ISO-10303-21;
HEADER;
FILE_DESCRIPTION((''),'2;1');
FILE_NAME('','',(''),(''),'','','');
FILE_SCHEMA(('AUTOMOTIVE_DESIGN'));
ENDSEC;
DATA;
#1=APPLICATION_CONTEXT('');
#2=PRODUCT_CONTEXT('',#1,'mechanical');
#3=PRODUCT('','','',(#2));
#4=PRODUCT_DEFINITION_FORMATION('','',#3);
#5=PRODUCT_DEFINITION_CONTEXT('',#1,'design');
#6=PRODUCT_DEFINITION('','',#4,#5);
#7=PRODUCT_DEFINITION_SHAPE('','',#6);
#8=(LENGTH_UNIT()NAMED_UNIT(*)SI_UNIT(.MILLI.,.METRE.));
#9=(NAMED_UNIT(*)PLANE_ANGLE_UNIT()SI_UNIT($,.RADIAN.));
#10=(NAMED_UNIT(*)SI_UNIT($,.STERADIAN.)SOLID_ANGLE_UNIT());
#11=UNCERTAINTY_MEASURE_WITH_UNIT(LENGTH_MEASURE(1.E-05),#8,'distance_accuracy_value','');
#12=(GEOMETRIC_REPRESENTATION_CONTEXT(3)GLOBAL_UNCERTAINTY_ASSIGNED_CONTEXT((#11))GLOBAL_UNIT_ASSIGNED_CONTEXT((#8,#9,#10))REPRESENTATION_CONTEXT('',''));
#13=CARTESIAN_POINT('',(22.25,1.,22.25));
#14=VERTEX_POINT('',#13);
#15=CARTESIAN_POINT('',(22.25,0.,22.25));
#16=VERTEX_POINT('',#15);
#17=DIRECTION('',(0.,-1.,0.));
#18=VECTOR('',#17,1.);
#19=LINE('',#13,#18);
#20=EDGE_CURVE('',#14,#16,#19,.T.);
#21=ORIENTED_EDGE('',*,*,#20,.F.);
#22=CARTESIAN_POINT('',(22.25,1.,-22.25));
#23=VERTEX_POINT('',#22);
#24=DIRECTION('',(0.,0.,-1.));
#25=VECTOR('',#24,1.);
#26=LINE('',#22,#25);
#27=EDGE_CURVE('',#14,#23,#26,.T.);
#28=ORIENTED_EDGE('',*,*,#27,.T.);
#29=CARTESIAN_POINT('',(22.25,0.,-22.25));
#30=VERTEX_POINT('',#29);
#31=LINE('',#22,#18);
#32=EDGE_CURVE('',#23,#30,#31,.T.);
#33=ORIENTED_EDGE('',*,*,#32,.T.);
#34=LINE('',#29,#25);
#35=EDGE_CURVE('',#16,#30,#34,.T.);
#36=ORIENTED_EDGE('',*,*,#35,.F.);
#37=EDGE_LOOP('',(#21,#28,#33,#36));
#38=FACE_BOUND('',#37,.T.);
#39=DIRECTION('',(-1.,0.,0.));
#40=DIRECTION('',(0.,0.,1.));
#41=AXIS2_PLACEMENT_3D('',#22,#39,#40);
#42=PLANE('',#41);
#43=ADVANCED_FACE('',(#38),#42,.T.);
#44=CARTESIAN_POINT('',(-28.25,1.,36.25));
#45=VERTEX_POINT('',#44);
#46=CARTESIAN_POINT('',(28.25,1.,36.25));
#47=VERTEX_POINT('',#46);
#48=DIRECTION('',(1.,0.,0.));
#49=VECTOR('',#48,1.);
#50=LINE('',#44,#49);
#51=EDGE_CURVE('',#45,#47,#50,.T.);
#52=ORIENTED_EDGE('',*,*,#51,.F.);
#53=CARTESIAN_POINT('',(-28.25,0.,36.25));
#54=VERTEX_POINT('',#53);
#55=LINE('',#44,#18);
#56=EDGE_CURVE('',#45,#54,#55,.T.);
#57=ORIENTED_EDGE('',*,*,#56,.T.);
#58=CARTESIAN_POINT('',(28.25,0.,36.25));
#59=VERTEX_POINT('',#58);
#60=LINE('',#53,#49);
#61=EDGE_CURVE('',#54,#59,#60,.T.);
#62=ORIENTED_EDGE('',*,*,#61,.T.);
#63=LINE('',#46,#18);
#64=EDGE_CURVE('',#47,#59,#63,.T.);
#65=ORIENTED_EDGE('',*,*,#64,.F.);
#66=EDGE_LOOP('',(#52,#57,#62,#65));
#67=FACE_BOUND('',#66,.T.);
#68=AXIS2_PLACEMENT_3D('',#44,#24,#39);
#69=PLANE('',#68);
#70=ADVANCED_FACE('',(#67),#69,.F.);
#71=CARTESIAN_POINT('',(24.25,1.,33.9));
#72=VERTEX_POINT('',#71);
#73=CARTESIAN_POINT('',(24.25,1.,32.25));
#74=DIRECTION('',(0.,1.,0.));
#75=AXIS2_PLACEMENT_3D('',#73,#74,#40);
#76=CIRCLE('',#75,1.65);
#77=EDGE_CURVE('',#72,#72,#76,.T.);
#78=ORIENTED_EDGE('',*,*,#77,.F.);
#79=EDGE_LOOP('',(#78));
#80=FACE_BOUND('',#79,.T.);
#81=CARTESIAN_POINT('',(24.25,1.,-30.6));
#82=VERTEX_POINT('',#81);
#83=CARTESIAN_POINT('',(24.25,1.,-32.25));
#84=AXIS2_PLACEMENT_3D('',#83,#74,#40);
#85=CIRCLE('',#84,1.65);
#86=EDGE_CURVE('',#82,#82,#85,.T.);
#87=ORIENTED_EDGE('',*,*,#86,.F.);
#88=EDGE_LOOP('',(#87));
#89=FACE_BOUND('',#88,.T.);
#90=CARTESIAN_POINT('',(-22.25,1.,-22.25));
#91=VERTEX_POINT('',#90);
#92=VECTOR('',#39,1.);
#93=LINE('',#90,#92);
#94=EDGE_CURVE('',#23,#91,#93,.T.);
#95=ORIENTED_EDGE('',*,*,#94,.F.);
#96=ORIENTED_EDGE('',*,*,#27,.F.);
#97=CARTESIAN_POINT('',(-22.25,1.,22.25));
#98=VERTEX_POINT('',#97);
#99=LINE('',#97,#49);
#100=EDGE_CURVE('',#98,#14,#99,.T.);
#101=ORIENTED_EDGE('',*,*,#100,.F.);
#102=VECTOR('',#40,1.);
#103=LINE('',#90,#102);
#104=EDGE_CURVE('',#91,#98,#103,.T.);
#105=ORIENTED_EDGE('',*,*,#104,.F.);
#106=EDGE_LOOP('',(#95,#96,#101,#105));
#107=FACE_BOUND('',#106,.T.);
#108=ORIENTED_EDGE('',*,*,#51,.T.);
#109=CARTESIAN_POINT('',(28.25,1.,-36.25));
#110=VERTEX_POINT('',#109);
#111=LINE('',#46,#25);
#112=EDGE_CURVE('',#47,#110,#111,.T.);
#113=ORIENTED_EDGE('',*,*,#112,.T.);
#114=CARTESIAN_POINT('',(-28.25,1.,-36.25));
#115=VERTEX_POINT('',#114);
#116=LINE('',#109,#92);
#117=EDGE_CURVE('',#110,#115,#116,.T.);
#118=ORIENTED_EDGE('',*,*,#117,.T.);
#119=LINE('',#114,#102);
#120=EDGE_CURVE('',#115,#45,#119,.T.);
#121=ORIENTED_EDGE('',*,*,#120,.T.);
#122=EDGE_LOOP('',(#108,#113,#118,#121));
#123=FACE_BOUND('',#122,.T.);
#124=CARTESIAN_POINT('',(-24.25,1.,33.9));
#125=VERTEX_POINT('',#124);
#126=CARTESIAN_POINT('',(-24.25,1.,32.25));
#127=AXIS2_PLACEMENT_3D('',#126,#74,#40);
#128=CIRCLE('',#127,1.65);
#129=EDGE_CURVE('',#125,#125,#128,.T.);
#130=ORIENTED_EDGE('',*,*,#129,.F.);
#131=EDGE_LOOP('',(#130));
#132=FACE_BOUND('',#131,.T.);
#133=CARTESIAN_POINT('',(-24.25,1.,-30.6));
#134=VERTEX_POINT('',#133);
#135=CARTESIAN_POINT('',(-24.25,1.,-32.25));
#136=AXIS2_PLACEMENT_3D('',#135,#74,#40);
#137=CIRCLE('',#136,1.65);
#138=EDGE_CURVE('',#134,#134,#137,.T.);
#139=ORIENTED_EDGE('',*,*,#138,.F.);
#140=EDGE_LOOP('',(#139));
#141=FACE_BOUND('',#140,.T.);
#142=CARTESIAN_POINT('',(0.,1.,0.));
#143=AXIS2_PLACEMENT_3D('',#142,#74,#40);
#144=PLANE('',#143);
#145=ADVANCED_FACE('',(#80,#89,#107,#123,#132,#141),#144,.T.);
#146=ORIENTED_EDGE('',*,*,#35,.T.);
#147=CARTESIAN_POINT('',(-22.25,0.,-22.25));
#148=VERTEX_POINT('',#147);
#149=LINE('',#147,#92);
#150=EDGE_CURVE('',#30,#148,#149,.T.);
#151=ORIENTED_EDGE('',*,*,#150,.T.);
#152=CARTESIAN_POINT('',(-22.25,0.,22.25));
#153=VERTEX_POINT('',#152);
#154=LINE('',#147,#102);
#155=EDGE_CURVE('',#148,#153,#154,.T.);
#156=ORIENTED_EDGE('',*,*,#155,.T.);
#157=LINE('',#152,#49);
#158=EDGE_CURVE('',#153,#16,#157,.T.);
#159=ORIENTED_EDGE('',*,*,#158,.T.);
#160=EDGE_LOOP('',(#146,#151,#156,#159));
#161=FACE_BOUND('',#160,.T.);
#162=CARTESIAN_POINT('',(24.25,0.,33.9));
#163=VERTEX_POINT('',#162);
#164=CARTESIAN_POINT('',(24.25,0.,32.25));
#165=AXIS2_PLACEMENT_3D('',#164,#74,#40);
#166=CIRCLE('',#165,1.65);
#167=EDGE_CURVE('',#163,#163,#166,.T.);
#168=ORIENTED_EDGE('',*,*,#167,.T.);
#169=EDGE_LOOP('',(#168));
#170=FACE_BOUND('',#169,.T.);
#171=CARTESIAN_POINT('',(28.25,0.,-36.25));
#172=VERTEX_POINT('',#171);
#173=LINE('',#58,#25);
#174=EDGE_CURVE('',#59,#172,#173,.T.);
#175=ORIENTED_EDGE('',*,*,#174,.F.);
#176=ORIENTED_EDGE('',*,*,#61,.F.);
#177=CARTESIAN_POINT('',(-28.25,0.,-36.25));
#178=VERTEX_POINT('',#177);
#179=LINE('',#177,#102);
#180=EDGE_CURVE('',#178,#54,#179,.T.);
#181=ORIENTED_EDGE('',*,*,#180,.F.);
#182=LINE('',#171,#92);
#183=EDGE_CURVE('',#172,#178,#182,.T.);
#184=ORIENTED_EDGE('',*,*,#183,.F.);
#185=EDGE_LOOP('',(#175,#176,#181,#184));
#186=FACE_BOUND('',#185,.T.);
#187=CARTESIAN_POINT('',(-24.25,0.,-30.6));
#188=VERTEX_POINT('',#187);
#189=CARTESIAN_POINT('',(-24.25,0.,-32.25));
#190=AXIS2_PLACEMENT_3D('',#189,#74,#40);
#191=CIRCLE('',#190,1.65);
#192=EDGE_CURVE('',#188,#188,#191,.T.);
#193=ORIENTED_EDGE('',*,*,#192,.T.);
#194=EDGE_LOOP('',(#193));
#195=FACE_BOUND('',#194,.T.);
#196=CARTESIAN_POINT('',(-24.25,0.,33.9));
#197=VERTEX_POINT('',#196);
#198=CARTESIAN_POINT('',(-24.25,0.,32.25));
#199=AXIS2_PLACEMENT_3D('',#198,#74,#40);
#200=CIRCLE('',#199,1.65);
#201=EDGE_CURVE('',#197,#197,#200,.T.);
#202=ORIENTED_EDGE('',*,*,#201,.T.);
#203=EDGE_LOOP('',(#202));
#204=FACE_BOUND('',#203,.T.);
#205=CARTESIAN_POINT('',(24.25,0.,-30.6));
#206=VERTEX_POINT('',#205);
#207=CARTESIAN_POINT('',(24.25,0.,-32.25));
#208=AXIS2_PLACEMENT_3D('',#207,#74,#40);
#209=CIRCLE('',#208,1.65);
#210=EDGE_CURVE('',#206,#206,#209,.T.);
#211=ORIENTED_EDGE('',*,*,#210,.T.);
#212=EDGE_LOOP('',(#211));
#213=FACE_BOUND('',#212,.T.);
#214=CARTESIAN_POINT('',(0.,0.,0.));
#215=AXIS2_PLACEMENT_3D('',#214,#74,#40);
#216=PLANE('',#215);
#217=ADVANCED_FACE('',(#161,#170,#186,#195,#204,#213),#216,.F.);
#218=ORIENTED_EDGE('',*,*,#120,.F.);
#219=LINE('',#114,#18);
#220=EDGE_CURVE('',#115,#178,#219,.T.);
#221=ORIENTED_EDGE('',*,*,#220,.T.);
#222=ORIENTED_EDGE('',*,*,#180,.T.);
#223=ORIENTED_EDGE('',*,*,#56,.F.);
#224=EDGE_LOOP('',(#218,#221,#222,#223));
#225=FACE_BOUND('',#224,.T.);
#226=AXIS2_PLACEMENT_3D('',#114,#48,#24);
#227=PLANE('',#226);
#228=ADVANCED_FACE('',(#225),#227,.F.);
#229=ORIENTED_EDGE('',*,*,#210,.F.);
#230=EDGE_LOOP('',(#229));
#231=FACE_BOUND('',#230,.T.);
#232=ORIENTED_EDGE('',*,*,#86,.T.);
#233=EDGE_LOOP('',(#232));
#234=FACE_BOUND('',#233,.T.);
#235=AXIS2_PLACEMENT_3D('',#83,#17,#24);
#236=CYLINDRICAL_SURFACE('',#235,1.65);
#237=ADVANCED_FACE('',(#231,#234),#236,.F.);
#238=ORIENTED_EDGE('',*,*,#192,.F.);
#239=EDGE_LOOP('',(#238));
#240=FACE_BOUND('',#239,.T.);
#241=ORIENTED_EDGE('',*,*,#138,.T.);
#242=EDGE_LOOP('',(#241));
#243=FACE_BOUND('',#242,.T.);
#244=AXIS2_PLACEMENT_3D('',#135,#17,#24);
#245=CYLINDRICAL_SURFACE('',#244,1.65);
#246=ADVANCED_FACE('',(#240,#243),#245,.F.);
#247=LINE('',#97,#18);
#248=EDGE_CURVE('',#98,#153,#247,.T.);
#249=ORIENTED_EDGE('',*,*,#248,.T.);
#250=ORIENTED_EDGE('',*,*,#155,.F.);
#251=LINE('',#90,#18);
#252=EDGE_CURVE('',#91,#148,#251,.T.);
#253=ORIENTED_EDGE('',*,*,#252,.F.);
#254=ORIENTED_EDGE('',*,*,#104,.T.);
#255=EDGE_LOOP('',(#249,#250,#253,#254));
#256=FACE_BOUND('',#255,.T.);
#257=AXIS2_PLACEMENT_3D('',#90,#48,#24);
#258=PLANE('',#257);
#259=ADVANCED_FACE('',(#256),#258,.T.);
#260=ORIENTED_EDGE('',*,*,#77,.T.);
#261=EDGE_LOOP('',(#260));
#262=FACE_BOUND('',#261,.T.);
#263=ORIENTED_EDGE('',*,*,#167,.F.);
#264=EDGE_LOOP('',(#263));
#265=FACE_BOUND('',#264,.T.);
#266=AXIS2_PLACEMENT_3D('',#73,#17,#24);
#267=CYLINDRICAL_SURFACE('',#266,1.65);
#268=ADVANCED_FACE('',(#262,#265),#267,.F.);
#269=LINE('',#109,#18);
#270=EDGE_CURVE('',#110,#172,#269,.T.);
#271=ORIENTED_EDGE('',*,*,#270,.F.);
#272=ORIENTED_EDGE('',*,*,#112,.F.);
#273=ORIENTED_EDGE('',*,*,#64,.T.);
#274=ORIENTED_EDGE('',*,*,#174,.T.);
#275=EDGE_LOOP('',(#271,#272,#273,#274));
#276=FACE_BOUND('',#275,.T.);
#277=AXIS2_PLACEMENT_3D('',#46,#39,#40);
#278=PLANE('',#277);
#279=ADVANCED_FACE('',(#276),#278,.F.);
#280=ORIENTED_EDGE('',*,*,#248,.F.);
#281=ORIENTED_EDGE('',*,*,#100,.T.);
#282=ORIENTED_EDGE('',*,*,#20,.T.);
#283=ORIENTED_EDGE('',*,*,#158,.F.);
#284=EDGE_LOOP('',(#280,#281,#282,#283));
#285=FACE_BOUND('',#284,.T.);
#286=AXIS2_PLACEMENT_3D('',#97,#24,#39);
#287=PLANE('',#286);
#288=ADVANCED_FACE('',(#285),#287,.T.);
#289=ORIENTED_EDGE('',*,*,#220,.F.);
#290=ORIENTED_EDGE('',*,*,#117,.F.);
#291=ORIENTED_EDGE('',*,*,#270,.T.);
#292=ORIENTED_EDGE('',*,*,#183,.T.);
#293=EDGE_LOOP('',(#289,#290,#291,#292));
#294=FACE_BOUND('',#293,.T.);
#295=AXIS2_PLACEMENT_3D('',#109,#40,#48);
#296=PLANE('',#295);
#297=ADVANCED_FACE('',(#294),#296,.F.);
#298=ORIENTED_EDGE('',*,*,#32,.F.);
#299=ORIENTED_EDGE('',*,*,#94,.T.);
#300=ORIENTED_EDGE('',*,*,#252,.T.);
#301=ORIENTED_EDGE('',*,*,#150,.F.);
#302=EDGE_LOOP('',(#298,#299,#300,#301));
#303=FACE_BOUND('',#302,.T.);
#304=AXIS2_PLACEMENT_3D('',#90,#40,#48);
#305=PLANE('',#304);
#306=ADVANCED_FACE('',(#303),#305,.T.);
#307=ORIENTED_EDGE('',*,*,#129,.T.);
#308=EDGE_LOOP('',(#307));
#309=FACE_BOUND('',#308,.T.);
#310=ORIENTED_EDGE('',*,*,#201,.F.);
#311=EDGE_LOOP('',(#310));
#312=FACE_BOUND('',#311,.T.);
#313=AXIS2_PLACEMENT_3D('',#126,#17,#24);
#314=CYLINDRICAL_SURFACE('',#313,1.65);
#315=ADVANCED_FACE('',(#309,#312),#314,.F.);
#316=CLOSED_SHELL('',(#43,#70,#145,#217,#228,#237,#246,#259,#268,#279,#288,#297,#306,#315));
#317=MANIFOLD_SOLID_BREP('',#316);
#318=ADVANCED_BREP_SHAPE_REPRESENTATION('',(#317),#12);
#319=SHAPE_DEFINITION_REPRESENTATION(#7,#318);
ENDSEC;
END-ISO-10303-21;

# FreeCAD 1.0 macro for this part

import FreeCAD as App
import Part
import Sketcher
Q = App.Units.Quantity


def add_polygon(sketch, points):
    """Adds a closed chain of lines whose ends are joined by coincident constraints."""
    first, n = sketch.GeometryCount, len(points)
    for a, b in zip(points, points[1:] + points[:1]):
        sketch.addGeometry(Part.LineSegment(App.Vector(*a, 0), App.Vector(*b, 0)), False)
    for i in range(n):
        sketch.addConstraint(Sketcher.Constraint("Coincident", first + i, 2, first + (i + 1) % n, 1))

doc = App.newDocument("Part")
body = doc.addObject("PartDesign::Body", "Body")

sketch1 = body.newObject("Sketcher::SketchObject", "Sketch")
sketch1.AttachmentSupport = (doc.getObject("XZ_Plane"), [""])
sketch1.MapMode = "FlatFace"
add_polygon(sketch1, [(-28.2, -36.2), (-28.2, 36.2), (28.2, 36.2), (28.2, -36.2)])
sketch1.addGeometry(Part.Circle(App.Vector(-24.2, 32.2, 0), App.Vector(0, 0, 1), 1.6), False)
add_polygon(sketch1, [(22.2, 22.2), (-22.2, 22.2), (-22.2, -22.2), (22.2, -22.2)])
sketch1.addGeometry(Part.Circle(App.Vector(24.2, 32.2, 0), App.Vector(0, 0, 1), 1.6), False)
sketch1.addGeometry(Part.Circle(App.Vector(-24.2, -32.2, 0), App.Vector(0, 0, 1), 1.6), False)
sketch1.addGeometry(Part.Circle(App.Vector(24.2, -32.2, 0), App.Vector(0, 0, 1), 1.6), False)
sketch1.addConstraint([
    Sketcher.Constraint("Vertical", 0),
    Sketcher.Constraint("Horizontal", 1),
    Sketcher.Constraint("Vertical", 2),
    Sketcher.Constraint("Horizontal", 3),
    Sketcher.Constraint("Horizontal", 5),
    Sketcher.Constraint("Vertical", 6),
    Sketcher.Constraint("Horizontal", 7),
    Sketcher.Constraint("Vertical", 8),
    Sketcher.Constraint("Equal", 4, 9),
    Sketcher.Constraint("Equal", 9, 10),
    Sketcher.Constraint("Equal", 10, 11),
    Sketcher.Constraint("Symmetric", 9, 3, 10, 3, -1, 1),
    Sketcher.Constraint("Symmetric", 4, 3, 11, 3, -1, 1),
    Sketcher.Constraint("Symmetric", 0, 2, 2, 2, -1, 1),
    Sketcher.Constraint("Symmetric", 5, 2, 7, 2, -1, 1),
    Sketcher.Constraint("Symmetric", 4, 3, 9, 3, -2),
    Sketcher.Constraint("Equal", 7, 6),
    Sketcher.Constraint("Diameter", 4, Q("3.3 mm")),
    Sketcher.Constraint("DistanceX", 1, 1, 1, 2, Q("56.5 mm")),
    Sketcher.Constraint("DistanceX", 5, 2, 5, 1, Q("44.5 mm")),
    Sketcher.Constraint("DistanceY", 0, 1, 0, 2, Q("72.5 mm")),
    Sketcher.Constraint("DistanceX", 0, 2, 4, 3, Q("4 mm")),
    Sketcher.Constraint("DistanceY", 4, 3, 0, 2, Q("4 mm")),
])
pad1 = body.newObject("PartDesign::Pad", "Pad")
pad1.Profile = sketch1
pad1.Length = 1
pad1.Reversed = True

doc.recompute()
